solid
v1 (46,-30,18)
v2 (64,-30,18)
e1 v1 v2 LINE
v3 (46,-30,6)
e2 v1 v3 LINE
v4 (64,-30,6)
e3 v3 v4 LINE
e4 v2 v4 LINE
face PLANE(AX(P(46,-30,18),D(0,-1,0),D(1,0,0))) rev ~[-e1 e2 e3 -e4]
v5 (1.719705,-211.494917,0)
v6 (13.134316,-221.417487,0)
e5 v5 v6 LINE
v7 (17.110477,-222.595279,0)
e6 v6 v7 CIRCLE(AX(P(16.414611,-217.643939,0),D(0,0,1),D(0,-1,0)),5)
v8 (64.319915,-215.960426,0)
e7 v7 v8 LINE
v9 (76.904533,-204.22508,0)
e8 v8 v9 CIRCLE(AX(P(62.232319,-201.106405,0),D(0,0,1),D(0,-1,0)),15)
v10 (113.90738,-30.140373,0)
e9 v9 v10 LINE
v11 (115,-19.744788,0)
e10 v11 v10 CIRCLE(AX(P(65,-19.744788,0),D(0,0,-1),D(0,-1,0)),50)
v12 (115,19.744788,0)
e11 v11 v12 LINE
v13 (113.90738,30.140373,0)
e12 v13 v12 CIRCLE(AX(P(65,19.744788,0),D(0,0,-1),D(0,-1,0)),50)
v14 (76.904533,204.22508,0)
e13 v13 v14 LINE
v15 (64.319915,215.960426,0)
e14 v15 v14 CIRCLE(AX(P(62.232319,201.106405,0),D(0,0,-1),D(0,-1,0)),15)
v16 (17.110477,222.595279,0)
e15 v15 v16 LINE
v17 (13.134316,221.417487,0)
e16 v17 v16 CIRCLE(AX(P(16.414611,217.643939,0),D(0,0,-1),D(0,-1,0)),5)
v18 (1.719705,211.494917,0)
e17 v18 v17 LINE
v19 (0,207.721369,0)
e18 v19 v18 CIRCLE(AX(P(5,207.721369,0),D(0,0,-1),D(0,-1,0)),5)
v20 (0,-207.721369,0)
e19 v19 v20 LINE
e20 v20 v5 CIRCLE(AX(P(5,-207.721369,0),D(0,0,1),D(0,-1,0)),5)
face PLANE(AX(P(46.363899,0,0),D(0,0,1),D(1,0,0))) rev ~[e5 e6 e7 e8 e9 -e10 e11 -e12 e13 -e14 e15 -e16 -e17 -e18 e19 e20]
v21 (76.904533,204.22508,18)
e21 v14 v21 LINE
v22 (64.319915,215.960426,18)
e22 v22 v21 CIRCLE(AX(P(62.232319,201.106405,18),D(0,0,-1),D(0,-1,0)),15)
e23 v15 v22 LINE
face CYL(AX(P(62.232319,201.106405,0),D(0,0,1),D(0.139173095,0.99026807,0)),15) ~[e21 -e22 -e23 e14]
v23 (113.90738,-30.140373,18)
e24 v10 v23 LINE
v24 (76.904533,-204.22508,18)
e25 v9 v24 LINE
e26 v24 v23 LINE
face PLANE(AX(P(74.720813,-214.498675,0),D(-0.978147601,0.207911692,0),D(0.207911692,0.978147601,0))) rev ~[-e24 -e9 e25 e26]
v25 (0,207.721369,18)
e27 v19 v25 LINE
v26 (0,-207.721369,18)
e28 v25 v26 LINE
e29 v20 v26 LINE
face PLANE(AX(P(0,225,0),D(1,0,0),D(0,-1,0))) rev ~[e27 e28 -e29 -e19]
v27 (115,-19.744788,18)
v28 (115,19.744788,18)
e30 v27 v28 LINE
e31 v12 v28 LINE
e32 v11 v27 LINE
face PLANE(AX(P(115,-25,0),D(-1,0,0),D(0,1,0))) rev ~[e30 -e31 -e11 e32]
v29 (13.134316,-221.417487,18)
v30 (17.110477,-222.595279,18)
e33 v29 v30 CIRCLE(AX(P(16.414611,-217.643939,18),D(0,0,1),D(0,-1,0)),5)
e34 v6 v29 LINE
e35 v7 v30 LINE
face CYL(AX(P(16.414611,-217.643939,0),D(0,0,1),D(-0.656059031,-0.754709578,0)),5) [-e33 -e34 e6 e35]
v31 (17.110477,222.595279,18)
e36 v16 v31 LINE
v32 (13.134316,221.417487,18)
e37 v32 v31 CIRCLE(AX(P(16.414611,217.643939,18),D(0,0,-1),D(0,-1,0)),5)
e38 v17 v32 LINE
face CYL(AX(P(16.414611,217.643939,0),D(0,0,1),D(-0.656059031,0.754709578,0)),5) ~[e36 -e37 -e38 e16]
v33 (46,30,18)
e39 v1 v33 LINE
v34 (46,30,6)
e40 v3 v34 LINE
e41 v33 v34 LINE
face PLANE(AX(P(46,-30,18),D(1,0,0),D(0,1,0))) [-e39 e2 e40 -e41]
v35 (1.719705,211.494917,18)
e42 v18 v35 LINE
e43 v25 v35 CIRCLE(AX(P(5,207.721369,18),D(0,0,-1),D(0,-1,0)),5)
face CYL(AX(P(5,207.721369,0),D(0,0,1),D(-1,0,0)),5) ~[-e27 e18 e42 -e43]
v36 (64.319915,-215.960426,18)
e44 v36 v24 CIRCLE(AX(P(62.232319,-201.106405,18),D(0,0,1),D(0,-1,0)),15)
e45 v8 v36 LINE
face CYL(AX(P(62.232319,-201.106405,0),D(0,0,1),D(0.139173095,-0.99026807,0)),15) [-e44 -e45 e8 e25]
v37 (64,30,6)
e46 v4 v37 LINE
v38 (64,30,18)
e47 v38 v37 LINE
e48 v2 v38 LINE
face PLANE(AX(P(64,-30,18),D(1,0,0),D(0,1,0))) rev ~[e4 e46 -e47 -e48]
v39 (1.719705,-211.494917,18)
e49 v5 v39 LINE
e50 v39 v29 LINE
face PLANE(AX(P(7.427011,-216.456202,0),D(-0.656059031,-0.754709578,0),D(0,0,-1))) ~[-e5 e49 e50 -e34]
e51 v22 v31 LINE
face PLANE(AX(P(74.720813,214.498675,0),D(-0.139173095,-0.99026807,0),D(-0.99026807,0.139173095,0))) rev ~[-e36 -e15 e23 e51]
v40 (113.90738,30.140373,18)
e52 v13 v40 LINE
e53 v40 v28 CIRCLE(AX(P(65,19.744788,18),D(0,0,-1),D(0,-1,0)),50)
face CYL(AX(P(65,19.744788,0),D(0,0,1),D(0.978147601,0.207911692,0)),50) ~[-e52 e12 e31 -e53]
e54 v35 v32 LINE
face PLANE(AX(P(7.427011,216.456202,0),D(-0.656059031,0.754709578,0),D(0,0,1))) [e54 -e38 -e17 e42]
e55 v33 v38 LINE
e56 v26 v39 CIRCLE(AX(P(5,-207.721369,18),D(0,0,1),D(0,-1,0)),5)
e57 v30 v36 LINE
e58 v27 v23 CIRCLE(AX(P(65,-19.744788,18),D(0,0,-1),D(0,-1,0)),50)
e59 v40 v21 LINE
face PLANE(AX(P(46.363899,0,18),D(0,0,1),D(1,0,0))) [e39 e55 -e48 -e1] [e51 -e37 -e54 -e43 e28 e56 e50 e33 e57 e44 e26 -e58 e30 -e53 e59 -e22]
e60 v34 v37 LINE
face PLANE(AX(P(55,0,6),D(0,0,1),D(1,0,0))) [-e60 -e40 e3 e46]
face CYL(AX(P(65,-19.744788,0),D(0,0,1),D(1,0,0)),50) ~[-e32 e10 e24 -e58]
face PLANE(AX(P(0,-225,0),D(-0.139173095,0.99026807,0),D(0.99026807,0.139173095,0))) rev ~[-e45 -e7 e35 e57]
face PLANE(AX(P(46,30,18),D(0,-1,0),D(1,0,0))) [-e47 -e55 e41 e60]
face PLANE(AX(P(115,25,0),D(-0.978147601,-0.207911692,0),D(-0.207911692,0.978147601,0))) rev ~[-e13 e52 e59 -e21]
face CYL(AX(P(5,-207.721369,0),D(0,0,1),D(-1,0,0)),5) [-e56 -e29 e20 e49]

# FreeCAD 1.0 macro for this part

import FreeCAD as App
import Part
import Sketcher
from FreeCAD import Vector
Q = App.Units.Quantity


def edges_at(feature, points):
    """Names of the edges that pass closest to the given points."""
    edges = feature.Shape.Edges
    near = lambda p: min(range(len(edges)), key=lambda i: edges[i].distToShape(Part.Vertex(*p))[0])
    return sorted({f"Edge{near(p) + 1}" for p in points})


def add_polygon(sketch, points):
    """Adds a closed chain of lines whose ends are joined by coincident constraints."""
    first, n = sketch.GeometryCount, len(points)
    for a, b in zip(points, points[1:] + points[:1]):
        sketch.addGeometry(Part.LineSegment(App.Vector(*a, 0), App.Vector(*b, 0)), False)
    for i in range(n):
        sketch.addConstraint(Sketcher.Constraint("Coincident", first + i, 2, first + (i + 1) % n, 1))

doc = App.newDocument("Part")
body = doc.addObject("PartDesign::Body", "Body")

sketch1 = body.newObject("Sketcher::SketchObject", "Sketch")
sketch1.AttachmentSupport = (doc.getObject("XY_Plane"), [""])
sketch1.MapMode = "FlatFace"
add_polygon(sketch1, [(0, 225), (0, -225), (75, -214), (115, -25), (115, 25), (75, 214)])
sketch1.addConstraint([
    Sketcher.Constraint("Vertical", 0),
    Sketcher.Constraint("Vertical", 3),
    Sketcher.Constraint("Symmetric", 0, 2, 5, 2, -1, 1),
    Sketcher.Constraint("Symmetric", 1, 2, 4, 2, -1),
    Sketcher.Constraint("Equal", 2, 4),
    Sketcher.Constraint("DistanceY", 0, 2, 0, 1, Q("450 mm")),
    Sketcher.Constraint("DistanceY", 3, 1, 3, 2, Q("50 mm")),
    Sketcher.Constraint("Angle", 1, Q("8 deg")),
    Sketcher.Constraint("Angle", 2, Q("78 deg")),
    Sketcher.Constraint("DistanceX", -1, 1, 2, 2, Q("115 mm")),
])
pad1 = body.newObject("PartDesign::Pad", "Pad")
pad1.Profile = sketch1
pad1.Length = 18

sketch2 = body.newObject("Sketcher::SketchObject", "Sketch001")
sketch2.AttachmentSupport = (doc.getObject("XY_Plane"), [""])
sketch2.MapMode = "FlatFace"
sketch2.AttachmentOffset = App.Placement(Vector(0, 0, 18), App.Rotation())
add_polygon(sketch2, [(46, 30), (46, -30), (64, -30), (64, 30)])
sketch2.addConstraint([
    Sketcher.Constraint("Vertical", 0),
    Sketcher.Constraint("Horizontal", 1),
    Sketcher.Constraint("Vertical", 2),
    Sketcher.Constraint("Horizontal", 3),
    Sketcher.Constraint("DistanceX", 1, 1, 1, 2, Q("18 mm")),
    Sketcher.Constraint("DistanceY", 0, 2, 0, 1, Q("60 mm")),
    Sketcher.Constraint("DistanceX", -1, 1, 0, 2, Q("46 mm")),
    Sketcher.Constraint("DistanceY", 0, 2, -1, 1, Q("30 mm")),
])
pocket1 = body.newObject("PartDesign::Pocket", "Pocket")
pocket1.Profile = sketch2
pocket1.Length = 12
doc.recompute()

chamfer = body.newObject("PartDesign::Chamfer", "Chamfer")
chamfer.Base = (pocket1, edges_at(pocket1, [(0, -225, 9), (0, 225, 9)]))
chamfer.Size = 15
doc.recompute()

fillet = body.newObject("PartDesign::Fillet", "Fillet")
fillet.Base = (chamfer, edges_at(chamfer, [
    (14.854, 222.912, 9),
    (0, 210, 9),
    (0, -210, 9),
    (14.854, -222.912, 9),
]))
fillet.Radius = 5
doc.recompute()

fillet2 = body.newObject("PartDesign::Fillet", "Fillet001")
fillet2.Base = (fillet, edges_at(fillet, [(74.721, -214.499, 9), (74.721, 214.499, 9)]))
fillet2.Radius = 15
doc.recompute()

fillet3 = body.newObject("PartDesign::Fillet", "Fillet002")
fillet3.Base = (fillet2, edges_at(fillet2, [(115, -25, 9), (115, 25, 9)]))
fillet3.Radius = 50

doc.recompute()
